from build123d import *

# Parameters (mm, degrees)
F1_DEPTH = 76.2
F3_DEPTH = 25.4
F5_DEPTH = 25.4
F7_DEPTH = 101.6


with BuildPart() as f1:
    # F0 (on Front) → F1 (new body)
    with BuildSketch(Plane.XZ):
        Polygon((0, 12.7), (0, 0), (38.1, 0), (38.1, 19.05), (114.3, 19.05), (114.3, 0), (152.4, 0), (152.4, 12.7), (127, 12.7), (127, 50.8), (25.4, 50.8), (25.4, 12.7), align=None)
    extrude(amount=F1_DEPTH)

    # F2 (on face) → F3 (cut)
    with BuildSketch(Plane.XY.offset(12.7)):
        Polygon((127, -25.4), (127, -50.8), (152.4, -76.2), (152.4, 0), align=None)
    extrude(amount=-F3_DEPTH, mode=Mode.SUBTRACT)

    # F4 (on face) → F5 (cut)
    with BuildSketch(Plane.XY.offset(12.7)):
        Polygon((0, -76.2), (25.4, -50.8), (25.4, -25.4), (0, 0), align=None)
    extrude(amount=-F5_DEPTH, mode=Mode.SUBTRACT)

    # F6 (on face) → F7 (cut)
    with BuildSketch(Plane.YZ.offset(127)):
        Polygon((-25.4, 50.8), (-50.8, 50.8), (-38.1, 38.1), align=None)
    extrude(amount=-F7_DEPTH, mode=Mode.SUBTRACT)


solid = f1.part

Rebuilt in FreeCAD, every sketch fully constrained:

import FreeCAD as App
import Part
import Sketcher
from FreeCAD import Vector
Q = App.Units.Quantity

doc = App.newDocument("Part")
params = doc.addObject("Spreadsheet::Sheet", "Params")
for row, (alias, value) in enumerate([
    ("sketch1_width", "3 in"),
    ("sketch1_width2", "1 in"),
    ("sketch1_width3", "4 in"),
    ("sketch1_height", "0.5 in"),
    ("sketch1_height2", "0.75 in"),
    ("pad1_length", "3 in"),
    ("sketch2_height", "1 in"),
    ("sketch2_height2", "3 in"),
    ("pocket1_length", "1 in"),
    ("sketch3_height", "1 in"),
    ("sketch3_height2", "3 in"),
    ("pocket2_length", "1 in"),
    ("sketch4_width", "1 in"),
    ("pocket3_length", "4 in"),
], start=1):
    params.set(f"A{row}", alias)
    params.set(f"B{row}", "=" + value)
    params.setAlias(f"B{row}", alias)

body = doc.addObject("PartDesign::Body", "Body")

sketch1 = body.newObject("Sketcher::SketchObject", "Sketch")
sketch1.AttachmentSupport = (doc.getObject("XZ_Plane"), [""])
sketch1.MapMode = "FlatFace"
sketch1.addGeometry([
    Part.LineSegment(Vector(0, 13, 0), Vector(0, 0, 0)),
    Part.LineSegment(Vector(0, 0, 0), Vector(38, 0, 0)),
    Part.LineSegment(Vector(38, 0, 0), Vector(38, 19, 0)),
    Part.LineSegment(Vector(38, 19, 0), Vector(114, 19, 0)),
    Part.LineSegment(Vector(114, 19, 0), Vector(114, 0, 0)),
    Part.LineSegment(Vector(114, 0, 0), Vector(152, 0, 0)),
    Part.LineSegment(Vector(152, 0, 0), Vector(152, 13, 0)),
    Part.LineSegment(Vector(152, 13, 0), Vector(127, 13, 0)),
    Part.LineSegment(Vector(127, 13, 0), Vector(127, 51, 0)),
    Part.LineSegment(Vector(127, 51, 0), Vector(25, 51, 0)),
    Part.LineSegment(Vector(25, 51, 0), Vector(25, 13, 0)),
    Part.LineSegment(Vector(25, 13, 0), Vector(0, 13, 0)),
], False)
sketch1.addConstraint([
    Sketcher.Constraint("Coincident", 0, 2, 1, 1),
    Sketcher.Constraint("Coincident", 1, 2, 2, 1),
    Sketcher.Constraint("Coincident", 2, 2, 3, 1),
    Sketcher.Constraint("Coincident", 3, 2, 4, 1),
    Sketcher.Constraint("Coincident", 4, 2, 5, 1),
    Sketcher.Constraint("Coincident", 5, 2, 6, 1),
    Sketcher.Constraint("Coincident", 6, 2, 7, 1),
    Sketcher.Constraint("Coincident", 7, 2, 8, 1),
    Sketcher.Constraint("Coincident", 8, 2, 9, 1),
    Sketcher.Constraint("Coincident", 9, 2, 10, 1),
    Sketcher.Constraint("Coincident", 10, 2, 11, 1),
    Sketcher.Constraint("Coincident", 11, 2, 0, 1),
    Sketcher.Constraint("Vertical", 0),
    Sketcher.Constraint("Horizontal", 1),
    Sketcher.Constraint("Vertical", 2),
    Sketcher.Constraint("Horizontal", 3),
    Sketcher.Constraint("Vertical", 4),
    Sketcher.Constraint("Horizontal", 5),
    Sketcher.Constraint("Vertical", 6),
    Sketcher.Constraint("Horizontal", 7),
    Sketcher.Constraint("Vertical", 8),
    Sketcher.Constraint("Horizontal", 9),
    Sketcher.Constraint("Vertical", 10),
    Sketcher.Constraint("Horizontal", 11),
    Sketcher.Constraint("Coincident", 0, 2, -1, 1),
    Sketcher.Constraint("PointOnObject", 4, 2, -1),
    Sketcher.Constraint("Horizontal", 7, 2, 10, 2),
    Sketcher.Constraint("Equal", 1, 5),
    Sketcher.Constraint("Equal", 7, 11),
    Sketcher.Constraint("Equal", 5, 8),
    Sketcher.Constraint("DistanceX", 3, 1, 3, 2, Q("3 in")),
    Sketcher.Constraint("DistanceX", 7, 2, 7, 1, Q("1 in")),
    Sketcher.Constraint("DistanceX", 9, 2, 9, 1, Q("4 in")),
    Sketcher.Constraint("DistanceY", 0, 2, 0, 1, Q("0.5 in")),
    Sketcher.Constraint("DistanceY", 2, 1, 2, 2, Q("0.75 in")),
])
sketch1.setExpression("Constraints[30]", "Params.sketch1_width")
sketch1.setExpression("Constraints[31]", "Params.sketch1_width2")
sketch1.setExpression("Constraints[32]", "Params.sketch1_width3")
sketch1.setExpression("Constraints[33]", "Params.sketch1_height")
sketch1.setExpression("Constraints[34]", "Params.sketch1_height2")
pad1 = body.newObject("PartDesign::Pad", "Pad")
pad1.Profile = sketch1
pad1.setExpression("Length", "Params.pad1_length")

sketch2 = body.newObject("Sketcher::SketchObject", "Sketch001")
sketch2.AttachmentSupport = (doc.getObject("XY_Plane"), [""])
sketch2.MapMode = "FlatFace"
sketch2.AttachmentOffset = App.Placement(Vector(0, 0, 0.5 * 25.4), App.Rotation())
sketch2.addGeometry([
    Part.LineSegment(Vector(127, -25, 0), Vector(127, -51, 0)),
    Part.LineSegment(Vector(127, -51, 0), Vector(152, -76, 0)),
    Part.LineSegment(Vector(152, -76, 0), Vector(152, 0, 0)),
    Part.LineSegment(Vector(152, 0, 0), Vector(127, -25, 0)),
], False)
sketch2.addConstraint([
    Sketcher.Constraint("Coincident", 0, 2, 1, 1),
    Sketcher.Constraint("Coincident", 1, 2, 2, 1),
    Sketcher.Constraint("Coincident", 2, 2, 3, 1),
    Sketcher.Constraint("Coincident", 3, 2, 0, 1),
    Sketcher.Constraint("Vertical", 0),
    Sketcher.Constraint("Vertical", 2),
    Sketcher.Constraint("PointOnObject", 2, 2, -1),
    Sketcher.Constraint("Perpendicular", 1, 3),
    Sketcher.Constraint("Equal", 1, 3),
    Sketcher.Constraint("DistanceY", 0, 2, 0, 1, Q("1 in")),
    Sketcher.Constraint("DistanceY", 2, 1, 2, 2, Q("3 in")),
    Sketcher.Constraint("DistanceX", -1, 1, 0, 2, Q("5 in")),
])
sketch2.setExpression("Constraints[9]", "Params.sketch2_height")
sketch2.setExpression("Constraints[10]", "Params.sketch2_height2")
pocket1 = body.newObject("PartDesign::Pocket", "Pocket")
pocket1.Profile = sketch2
pocket1.setExpression("Length", "Params.pocket1_length")

sketch3 = body.newObject("Sketcher::SketchObject", "Sketch002")
sketch3.AttachmentSupport = (doc.getObject("XY_Plane"), [""])
sketch3.MapMode = "FlatFace"
sketch3.AttachmentOffset = App.Placement(Vector(0, 0, 0.5 * 25.4), App.Rotation())
sketch3.addGeometry([
    Part.LineSegment(Vector(0, -76, 0), Vector(25, -51, 0)),
    Part.LineSegment(Vector(25, -51, 0), Vector(25, -25, 0)),
    Part.LineSegment(Vector(25, -25, 0), Vector(0, 0, 0)),
    Part.LineSegment(Vector(0, 0, 0), Vector(0, -76, 0)),
], False)
sketch3.addConstraint([
    Sketcher.Constraint("Coincident", 0, 2, 1, 1),
    Sketcher.Constraint("Coincident", 1, 2, 2, 1),
    Sketcher.Constraint("Coincident", 2, 2, 3, 1),
    Sketcher.Constraint("Coincident", 3, 2, 0, 1),
    Sketcher.Constraint("Vertical", 1),
    Sketcher.Constraint("Vertical", 3),
    Sketcher.Constraint("Coincident", 2, 2, -1, 1),
    Sketcher.Constraint("Perpendicular", 0, 2),
    Sketcher.Constraint("Equal", 0, 2),
    Sketcher.Constraint("DistanceY", 1, 1, 1, 2, Q("1 in")),
    Sketcher.Constraint("DistanceY", 3, 2, 3, 1, Q("3 in")),
])
sketch3.setExpression("Constraints[9]", "Params.sketch3_height")
sketch3.setExpression("Constraints[10]", "Params.sketch3_height2")
pocket2 = body.newObject("PartDesign::Pocket", "Pocket001")
pocket2.Profile = sketch3
pocket2.setExpression("Length", "Params.pocket2_length")

sketch4 = body.newObject("Sketcher::SketchObject", "Sketch003")
sketch4.AttachmentSupport = (doc.getObject("YZ_Plane"), [""])
sketch4.MapMode = "FlatFace"
sketch4.AttachmentOffset = App.Placement(Vector(0, 0, 5 * 25.4), App.Rotation())
sketch4.addGeometry([
    Part.LineSegment(Vector(-25, 51, 0), Vector(-51, 51, 0)),
    Part.LineSegment(Vector(-51, 51, 0), Vector(-38, 38, 0)),
    Part.LineSegment(Vector(-38, 38, 0), Vector(-25, 51, 0)),
], False)
sketch4.addConstraint([
    Sketcher.Constraint("Coincident", 0, 2, 1, 1),
    Sketcher.Constraint("Coincident", 1, 2, 2, 1),
    Sketcher.Constraint("Coincident", 2, 2, 0, 1),
    Sketcher.Constraint("Horizontal", 0),
    Sketcher.Constraint("Perpendicular", 1, 2),
    Sketcher.Constraint("Equal", 1, 2),
    Sketcher.Constraint("DistanceX", 0, 2, 0, 1, Q("1 in")),
    Sketcher.Constraint("DistanceX", 0, 2, -1, 1, Q("2 in")),
    Sketcher.Constraint("DistanceY", -1, 1, 0, 2, Q("2 in")),
])
sketch4.setExpression("Constraints[6]", "Params.sketch4_width")
pocket3 = body.newObject("PartDesign::Pocket", "Pocket002")
pocket3.Profile = sketch4
pocket3.setExpression("Length", "Params.pocket3_length")

doc.recompute()
